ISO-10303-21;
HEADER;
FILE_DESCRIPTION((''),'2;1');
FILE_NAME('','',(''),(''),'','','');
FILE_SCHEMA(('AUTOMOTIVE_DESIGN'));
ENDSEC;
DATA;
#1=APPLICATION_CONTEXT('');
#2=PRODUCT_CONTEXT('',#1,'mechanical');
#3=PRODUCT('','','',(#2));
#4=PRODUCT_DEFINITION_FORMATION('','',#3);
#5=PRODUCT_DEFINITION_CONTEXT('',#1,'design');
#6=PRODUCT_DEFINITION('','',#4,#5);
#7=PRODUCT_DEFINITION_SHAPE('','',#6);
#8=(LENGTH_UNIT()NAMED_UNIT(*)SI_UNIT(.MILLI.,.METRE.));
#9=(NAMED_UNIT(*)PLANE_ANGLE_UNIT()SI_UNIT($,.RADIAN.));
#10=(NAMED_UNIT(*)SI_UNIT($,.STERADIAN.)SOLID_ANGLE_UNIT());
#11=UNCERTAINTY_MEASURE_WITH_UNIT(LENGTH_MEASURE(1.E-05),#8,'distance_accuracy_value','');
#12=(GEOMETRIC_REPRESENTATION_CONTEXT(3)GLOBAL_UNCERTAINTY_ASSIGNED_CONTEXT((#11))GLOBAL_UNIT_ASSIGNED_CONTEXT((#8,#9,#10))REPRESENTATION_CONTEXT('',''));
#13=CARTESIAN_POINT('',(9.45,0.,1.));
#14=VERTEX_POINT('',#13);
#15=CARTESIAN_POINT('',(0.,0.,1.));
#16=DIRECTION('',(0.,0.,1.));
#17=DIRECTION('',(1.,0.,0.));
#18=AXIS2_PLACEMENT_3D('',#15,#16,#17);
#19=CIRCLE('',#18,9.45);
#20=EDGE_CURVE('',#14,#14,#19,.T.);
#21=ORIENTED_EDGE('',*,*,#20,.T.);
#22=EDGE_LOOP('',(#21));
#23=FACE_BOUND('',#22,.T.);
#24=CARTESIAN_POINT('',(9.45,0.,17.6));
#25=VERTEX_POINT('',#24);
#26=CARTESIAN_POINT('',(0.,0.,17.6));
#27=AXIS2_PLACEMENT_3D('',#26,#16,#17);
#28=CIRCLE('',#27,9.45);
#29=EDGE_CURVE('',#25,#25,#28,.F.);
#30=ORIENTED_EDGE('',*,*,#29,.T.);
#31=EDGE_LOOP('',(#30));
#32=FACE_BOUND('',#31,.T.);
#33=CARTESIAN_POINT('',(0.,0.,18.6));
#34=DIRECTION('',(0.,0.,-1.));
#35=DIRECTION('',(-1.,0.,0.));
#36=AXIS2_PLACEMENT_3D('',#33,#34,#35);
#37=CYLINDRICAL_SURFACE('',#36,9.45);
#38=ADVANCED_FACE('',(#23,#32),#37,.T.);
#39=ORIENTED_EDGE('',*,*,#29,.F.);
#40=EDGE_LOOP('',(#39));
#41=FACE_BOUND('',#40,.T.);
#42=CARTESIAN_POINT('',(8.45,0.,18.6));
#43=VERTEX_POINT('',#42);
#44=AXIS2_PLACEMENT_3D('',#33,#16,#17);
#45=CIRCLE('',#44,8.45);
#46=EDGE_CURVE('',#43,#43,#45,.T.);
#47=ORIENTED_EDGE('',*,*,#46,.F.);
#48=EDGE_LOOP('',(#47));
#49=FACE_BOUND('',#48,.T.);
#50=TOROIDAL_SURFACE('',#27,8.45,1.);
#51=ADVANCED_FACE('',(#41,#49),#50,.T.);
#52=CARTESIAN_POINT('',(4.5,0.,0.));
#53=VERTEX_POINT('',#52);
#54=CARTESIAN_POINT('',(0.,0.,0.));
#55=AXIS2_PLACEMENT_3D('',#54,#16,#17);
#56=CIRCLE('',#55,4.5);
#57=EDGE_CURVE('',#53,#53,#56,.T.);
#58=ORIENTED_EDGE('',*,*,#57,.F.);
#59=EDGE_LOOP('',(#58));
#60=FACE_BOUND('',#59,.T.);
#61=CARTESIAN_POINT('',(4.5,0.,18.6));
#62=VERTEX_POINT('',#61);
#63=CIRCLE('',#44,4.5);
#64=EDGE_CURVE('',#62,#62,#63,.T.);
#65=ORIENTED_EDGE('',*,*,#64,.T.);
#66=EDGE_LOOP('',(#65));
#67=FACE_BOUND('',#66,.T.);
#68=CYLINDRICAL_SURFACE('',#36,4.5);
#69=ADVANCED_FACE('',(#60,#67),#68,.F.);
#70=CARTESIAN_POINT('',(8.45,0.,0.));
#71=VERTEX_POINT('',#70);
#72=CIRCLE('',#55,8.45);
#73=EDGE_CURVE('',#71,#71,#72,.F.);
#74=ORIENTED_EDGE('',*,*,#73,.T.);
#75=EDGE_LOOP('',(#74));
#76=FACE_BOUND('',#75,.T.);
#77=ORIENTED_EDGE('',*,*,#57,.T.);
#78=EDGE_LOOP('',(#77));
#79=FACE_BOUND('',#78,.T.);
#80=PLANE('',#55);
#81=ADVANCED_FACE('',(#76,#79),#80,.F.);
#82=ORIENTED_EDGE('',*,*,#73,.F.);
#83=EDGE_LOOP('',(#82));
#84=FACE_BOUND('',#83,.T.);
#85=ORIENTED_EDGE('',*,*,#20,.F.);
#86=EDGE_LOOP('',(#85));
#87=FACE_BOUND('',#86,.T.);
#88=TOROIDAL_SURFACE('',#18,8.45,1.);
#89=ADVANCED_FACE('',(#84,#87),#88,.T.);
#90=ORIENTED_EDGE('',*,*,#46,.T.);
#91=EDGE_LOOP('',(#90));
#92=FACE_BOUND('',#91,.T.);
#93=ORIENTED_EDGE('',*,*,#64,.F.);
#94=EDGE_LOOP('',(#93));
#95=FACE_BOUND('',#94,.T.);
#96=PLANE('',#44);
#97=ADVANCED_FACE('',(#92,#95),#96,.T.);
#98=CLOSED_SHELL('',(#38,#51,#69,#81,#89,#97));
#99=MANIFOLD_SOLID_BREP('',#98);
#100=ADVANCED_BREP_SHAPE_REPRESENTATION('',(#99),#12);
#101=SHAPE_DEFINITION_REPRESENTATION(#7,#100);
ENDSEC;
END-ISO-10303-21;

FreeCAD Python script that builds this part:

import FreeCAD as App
import Part
import Sketcher

V = App.Vector
Q = App.Units.Quantity


def edges_at(feature, points):
    """Names of the edges that pass closest to the given points."""
    edges = feature.Shape.Edges
    near = lambda p: min(range(len(edges)), key=lambda i: edges[i].distToShape(Part.Vertex(*p))[0])
    return sorted({f"Edge{near(p) + 1}" for p in points})

doc = App.newDocument("Part")
body = doc.addObject("PartDesign::Body", "Body")

# Sketch on XY plane
sketch1 = body.newObject("Sketcher::SketchObject", "Sketch")
sketch1.AttachmentSupport = (doc.getObject("XY_Plane"), [""])
sketch1.MapMode = "FlatFace"
sketch1.addGeometry([
    Part.Circle(V(0, 0, 0), V(0, 0, 1), 9.45),
    Part.Circle(V(0, 0, 0), V(0, 0, 1), 4.5),
], False)
sketch1.addConstraint([
    Sketcher.Constraint("Coincident", 0, 3, -1, 1),
    Sketcher.Constraint("Coincident", 1, 3, -1, 1),
    Sketcher.Constraint("Diameter", 1, Q("9 mm")),
    Sketcher.Constraint("Diameter", 0, Q("18.9 mm")),
])
pad1 = body.newObject("PartDesign::Pad", "Pad")
pad1.Profile = sketch1
pad1.Length = 18.6
doc.recompute()

fillet = body.newObject("PartDesign::Fillet", "Fillet")
fillet.Base = (pad1, edges_at(pad1, [(-9.45, 0, 0), (-9.45, 0, 18.6)]))
fillet.Radius = 1

doc.recompute()
